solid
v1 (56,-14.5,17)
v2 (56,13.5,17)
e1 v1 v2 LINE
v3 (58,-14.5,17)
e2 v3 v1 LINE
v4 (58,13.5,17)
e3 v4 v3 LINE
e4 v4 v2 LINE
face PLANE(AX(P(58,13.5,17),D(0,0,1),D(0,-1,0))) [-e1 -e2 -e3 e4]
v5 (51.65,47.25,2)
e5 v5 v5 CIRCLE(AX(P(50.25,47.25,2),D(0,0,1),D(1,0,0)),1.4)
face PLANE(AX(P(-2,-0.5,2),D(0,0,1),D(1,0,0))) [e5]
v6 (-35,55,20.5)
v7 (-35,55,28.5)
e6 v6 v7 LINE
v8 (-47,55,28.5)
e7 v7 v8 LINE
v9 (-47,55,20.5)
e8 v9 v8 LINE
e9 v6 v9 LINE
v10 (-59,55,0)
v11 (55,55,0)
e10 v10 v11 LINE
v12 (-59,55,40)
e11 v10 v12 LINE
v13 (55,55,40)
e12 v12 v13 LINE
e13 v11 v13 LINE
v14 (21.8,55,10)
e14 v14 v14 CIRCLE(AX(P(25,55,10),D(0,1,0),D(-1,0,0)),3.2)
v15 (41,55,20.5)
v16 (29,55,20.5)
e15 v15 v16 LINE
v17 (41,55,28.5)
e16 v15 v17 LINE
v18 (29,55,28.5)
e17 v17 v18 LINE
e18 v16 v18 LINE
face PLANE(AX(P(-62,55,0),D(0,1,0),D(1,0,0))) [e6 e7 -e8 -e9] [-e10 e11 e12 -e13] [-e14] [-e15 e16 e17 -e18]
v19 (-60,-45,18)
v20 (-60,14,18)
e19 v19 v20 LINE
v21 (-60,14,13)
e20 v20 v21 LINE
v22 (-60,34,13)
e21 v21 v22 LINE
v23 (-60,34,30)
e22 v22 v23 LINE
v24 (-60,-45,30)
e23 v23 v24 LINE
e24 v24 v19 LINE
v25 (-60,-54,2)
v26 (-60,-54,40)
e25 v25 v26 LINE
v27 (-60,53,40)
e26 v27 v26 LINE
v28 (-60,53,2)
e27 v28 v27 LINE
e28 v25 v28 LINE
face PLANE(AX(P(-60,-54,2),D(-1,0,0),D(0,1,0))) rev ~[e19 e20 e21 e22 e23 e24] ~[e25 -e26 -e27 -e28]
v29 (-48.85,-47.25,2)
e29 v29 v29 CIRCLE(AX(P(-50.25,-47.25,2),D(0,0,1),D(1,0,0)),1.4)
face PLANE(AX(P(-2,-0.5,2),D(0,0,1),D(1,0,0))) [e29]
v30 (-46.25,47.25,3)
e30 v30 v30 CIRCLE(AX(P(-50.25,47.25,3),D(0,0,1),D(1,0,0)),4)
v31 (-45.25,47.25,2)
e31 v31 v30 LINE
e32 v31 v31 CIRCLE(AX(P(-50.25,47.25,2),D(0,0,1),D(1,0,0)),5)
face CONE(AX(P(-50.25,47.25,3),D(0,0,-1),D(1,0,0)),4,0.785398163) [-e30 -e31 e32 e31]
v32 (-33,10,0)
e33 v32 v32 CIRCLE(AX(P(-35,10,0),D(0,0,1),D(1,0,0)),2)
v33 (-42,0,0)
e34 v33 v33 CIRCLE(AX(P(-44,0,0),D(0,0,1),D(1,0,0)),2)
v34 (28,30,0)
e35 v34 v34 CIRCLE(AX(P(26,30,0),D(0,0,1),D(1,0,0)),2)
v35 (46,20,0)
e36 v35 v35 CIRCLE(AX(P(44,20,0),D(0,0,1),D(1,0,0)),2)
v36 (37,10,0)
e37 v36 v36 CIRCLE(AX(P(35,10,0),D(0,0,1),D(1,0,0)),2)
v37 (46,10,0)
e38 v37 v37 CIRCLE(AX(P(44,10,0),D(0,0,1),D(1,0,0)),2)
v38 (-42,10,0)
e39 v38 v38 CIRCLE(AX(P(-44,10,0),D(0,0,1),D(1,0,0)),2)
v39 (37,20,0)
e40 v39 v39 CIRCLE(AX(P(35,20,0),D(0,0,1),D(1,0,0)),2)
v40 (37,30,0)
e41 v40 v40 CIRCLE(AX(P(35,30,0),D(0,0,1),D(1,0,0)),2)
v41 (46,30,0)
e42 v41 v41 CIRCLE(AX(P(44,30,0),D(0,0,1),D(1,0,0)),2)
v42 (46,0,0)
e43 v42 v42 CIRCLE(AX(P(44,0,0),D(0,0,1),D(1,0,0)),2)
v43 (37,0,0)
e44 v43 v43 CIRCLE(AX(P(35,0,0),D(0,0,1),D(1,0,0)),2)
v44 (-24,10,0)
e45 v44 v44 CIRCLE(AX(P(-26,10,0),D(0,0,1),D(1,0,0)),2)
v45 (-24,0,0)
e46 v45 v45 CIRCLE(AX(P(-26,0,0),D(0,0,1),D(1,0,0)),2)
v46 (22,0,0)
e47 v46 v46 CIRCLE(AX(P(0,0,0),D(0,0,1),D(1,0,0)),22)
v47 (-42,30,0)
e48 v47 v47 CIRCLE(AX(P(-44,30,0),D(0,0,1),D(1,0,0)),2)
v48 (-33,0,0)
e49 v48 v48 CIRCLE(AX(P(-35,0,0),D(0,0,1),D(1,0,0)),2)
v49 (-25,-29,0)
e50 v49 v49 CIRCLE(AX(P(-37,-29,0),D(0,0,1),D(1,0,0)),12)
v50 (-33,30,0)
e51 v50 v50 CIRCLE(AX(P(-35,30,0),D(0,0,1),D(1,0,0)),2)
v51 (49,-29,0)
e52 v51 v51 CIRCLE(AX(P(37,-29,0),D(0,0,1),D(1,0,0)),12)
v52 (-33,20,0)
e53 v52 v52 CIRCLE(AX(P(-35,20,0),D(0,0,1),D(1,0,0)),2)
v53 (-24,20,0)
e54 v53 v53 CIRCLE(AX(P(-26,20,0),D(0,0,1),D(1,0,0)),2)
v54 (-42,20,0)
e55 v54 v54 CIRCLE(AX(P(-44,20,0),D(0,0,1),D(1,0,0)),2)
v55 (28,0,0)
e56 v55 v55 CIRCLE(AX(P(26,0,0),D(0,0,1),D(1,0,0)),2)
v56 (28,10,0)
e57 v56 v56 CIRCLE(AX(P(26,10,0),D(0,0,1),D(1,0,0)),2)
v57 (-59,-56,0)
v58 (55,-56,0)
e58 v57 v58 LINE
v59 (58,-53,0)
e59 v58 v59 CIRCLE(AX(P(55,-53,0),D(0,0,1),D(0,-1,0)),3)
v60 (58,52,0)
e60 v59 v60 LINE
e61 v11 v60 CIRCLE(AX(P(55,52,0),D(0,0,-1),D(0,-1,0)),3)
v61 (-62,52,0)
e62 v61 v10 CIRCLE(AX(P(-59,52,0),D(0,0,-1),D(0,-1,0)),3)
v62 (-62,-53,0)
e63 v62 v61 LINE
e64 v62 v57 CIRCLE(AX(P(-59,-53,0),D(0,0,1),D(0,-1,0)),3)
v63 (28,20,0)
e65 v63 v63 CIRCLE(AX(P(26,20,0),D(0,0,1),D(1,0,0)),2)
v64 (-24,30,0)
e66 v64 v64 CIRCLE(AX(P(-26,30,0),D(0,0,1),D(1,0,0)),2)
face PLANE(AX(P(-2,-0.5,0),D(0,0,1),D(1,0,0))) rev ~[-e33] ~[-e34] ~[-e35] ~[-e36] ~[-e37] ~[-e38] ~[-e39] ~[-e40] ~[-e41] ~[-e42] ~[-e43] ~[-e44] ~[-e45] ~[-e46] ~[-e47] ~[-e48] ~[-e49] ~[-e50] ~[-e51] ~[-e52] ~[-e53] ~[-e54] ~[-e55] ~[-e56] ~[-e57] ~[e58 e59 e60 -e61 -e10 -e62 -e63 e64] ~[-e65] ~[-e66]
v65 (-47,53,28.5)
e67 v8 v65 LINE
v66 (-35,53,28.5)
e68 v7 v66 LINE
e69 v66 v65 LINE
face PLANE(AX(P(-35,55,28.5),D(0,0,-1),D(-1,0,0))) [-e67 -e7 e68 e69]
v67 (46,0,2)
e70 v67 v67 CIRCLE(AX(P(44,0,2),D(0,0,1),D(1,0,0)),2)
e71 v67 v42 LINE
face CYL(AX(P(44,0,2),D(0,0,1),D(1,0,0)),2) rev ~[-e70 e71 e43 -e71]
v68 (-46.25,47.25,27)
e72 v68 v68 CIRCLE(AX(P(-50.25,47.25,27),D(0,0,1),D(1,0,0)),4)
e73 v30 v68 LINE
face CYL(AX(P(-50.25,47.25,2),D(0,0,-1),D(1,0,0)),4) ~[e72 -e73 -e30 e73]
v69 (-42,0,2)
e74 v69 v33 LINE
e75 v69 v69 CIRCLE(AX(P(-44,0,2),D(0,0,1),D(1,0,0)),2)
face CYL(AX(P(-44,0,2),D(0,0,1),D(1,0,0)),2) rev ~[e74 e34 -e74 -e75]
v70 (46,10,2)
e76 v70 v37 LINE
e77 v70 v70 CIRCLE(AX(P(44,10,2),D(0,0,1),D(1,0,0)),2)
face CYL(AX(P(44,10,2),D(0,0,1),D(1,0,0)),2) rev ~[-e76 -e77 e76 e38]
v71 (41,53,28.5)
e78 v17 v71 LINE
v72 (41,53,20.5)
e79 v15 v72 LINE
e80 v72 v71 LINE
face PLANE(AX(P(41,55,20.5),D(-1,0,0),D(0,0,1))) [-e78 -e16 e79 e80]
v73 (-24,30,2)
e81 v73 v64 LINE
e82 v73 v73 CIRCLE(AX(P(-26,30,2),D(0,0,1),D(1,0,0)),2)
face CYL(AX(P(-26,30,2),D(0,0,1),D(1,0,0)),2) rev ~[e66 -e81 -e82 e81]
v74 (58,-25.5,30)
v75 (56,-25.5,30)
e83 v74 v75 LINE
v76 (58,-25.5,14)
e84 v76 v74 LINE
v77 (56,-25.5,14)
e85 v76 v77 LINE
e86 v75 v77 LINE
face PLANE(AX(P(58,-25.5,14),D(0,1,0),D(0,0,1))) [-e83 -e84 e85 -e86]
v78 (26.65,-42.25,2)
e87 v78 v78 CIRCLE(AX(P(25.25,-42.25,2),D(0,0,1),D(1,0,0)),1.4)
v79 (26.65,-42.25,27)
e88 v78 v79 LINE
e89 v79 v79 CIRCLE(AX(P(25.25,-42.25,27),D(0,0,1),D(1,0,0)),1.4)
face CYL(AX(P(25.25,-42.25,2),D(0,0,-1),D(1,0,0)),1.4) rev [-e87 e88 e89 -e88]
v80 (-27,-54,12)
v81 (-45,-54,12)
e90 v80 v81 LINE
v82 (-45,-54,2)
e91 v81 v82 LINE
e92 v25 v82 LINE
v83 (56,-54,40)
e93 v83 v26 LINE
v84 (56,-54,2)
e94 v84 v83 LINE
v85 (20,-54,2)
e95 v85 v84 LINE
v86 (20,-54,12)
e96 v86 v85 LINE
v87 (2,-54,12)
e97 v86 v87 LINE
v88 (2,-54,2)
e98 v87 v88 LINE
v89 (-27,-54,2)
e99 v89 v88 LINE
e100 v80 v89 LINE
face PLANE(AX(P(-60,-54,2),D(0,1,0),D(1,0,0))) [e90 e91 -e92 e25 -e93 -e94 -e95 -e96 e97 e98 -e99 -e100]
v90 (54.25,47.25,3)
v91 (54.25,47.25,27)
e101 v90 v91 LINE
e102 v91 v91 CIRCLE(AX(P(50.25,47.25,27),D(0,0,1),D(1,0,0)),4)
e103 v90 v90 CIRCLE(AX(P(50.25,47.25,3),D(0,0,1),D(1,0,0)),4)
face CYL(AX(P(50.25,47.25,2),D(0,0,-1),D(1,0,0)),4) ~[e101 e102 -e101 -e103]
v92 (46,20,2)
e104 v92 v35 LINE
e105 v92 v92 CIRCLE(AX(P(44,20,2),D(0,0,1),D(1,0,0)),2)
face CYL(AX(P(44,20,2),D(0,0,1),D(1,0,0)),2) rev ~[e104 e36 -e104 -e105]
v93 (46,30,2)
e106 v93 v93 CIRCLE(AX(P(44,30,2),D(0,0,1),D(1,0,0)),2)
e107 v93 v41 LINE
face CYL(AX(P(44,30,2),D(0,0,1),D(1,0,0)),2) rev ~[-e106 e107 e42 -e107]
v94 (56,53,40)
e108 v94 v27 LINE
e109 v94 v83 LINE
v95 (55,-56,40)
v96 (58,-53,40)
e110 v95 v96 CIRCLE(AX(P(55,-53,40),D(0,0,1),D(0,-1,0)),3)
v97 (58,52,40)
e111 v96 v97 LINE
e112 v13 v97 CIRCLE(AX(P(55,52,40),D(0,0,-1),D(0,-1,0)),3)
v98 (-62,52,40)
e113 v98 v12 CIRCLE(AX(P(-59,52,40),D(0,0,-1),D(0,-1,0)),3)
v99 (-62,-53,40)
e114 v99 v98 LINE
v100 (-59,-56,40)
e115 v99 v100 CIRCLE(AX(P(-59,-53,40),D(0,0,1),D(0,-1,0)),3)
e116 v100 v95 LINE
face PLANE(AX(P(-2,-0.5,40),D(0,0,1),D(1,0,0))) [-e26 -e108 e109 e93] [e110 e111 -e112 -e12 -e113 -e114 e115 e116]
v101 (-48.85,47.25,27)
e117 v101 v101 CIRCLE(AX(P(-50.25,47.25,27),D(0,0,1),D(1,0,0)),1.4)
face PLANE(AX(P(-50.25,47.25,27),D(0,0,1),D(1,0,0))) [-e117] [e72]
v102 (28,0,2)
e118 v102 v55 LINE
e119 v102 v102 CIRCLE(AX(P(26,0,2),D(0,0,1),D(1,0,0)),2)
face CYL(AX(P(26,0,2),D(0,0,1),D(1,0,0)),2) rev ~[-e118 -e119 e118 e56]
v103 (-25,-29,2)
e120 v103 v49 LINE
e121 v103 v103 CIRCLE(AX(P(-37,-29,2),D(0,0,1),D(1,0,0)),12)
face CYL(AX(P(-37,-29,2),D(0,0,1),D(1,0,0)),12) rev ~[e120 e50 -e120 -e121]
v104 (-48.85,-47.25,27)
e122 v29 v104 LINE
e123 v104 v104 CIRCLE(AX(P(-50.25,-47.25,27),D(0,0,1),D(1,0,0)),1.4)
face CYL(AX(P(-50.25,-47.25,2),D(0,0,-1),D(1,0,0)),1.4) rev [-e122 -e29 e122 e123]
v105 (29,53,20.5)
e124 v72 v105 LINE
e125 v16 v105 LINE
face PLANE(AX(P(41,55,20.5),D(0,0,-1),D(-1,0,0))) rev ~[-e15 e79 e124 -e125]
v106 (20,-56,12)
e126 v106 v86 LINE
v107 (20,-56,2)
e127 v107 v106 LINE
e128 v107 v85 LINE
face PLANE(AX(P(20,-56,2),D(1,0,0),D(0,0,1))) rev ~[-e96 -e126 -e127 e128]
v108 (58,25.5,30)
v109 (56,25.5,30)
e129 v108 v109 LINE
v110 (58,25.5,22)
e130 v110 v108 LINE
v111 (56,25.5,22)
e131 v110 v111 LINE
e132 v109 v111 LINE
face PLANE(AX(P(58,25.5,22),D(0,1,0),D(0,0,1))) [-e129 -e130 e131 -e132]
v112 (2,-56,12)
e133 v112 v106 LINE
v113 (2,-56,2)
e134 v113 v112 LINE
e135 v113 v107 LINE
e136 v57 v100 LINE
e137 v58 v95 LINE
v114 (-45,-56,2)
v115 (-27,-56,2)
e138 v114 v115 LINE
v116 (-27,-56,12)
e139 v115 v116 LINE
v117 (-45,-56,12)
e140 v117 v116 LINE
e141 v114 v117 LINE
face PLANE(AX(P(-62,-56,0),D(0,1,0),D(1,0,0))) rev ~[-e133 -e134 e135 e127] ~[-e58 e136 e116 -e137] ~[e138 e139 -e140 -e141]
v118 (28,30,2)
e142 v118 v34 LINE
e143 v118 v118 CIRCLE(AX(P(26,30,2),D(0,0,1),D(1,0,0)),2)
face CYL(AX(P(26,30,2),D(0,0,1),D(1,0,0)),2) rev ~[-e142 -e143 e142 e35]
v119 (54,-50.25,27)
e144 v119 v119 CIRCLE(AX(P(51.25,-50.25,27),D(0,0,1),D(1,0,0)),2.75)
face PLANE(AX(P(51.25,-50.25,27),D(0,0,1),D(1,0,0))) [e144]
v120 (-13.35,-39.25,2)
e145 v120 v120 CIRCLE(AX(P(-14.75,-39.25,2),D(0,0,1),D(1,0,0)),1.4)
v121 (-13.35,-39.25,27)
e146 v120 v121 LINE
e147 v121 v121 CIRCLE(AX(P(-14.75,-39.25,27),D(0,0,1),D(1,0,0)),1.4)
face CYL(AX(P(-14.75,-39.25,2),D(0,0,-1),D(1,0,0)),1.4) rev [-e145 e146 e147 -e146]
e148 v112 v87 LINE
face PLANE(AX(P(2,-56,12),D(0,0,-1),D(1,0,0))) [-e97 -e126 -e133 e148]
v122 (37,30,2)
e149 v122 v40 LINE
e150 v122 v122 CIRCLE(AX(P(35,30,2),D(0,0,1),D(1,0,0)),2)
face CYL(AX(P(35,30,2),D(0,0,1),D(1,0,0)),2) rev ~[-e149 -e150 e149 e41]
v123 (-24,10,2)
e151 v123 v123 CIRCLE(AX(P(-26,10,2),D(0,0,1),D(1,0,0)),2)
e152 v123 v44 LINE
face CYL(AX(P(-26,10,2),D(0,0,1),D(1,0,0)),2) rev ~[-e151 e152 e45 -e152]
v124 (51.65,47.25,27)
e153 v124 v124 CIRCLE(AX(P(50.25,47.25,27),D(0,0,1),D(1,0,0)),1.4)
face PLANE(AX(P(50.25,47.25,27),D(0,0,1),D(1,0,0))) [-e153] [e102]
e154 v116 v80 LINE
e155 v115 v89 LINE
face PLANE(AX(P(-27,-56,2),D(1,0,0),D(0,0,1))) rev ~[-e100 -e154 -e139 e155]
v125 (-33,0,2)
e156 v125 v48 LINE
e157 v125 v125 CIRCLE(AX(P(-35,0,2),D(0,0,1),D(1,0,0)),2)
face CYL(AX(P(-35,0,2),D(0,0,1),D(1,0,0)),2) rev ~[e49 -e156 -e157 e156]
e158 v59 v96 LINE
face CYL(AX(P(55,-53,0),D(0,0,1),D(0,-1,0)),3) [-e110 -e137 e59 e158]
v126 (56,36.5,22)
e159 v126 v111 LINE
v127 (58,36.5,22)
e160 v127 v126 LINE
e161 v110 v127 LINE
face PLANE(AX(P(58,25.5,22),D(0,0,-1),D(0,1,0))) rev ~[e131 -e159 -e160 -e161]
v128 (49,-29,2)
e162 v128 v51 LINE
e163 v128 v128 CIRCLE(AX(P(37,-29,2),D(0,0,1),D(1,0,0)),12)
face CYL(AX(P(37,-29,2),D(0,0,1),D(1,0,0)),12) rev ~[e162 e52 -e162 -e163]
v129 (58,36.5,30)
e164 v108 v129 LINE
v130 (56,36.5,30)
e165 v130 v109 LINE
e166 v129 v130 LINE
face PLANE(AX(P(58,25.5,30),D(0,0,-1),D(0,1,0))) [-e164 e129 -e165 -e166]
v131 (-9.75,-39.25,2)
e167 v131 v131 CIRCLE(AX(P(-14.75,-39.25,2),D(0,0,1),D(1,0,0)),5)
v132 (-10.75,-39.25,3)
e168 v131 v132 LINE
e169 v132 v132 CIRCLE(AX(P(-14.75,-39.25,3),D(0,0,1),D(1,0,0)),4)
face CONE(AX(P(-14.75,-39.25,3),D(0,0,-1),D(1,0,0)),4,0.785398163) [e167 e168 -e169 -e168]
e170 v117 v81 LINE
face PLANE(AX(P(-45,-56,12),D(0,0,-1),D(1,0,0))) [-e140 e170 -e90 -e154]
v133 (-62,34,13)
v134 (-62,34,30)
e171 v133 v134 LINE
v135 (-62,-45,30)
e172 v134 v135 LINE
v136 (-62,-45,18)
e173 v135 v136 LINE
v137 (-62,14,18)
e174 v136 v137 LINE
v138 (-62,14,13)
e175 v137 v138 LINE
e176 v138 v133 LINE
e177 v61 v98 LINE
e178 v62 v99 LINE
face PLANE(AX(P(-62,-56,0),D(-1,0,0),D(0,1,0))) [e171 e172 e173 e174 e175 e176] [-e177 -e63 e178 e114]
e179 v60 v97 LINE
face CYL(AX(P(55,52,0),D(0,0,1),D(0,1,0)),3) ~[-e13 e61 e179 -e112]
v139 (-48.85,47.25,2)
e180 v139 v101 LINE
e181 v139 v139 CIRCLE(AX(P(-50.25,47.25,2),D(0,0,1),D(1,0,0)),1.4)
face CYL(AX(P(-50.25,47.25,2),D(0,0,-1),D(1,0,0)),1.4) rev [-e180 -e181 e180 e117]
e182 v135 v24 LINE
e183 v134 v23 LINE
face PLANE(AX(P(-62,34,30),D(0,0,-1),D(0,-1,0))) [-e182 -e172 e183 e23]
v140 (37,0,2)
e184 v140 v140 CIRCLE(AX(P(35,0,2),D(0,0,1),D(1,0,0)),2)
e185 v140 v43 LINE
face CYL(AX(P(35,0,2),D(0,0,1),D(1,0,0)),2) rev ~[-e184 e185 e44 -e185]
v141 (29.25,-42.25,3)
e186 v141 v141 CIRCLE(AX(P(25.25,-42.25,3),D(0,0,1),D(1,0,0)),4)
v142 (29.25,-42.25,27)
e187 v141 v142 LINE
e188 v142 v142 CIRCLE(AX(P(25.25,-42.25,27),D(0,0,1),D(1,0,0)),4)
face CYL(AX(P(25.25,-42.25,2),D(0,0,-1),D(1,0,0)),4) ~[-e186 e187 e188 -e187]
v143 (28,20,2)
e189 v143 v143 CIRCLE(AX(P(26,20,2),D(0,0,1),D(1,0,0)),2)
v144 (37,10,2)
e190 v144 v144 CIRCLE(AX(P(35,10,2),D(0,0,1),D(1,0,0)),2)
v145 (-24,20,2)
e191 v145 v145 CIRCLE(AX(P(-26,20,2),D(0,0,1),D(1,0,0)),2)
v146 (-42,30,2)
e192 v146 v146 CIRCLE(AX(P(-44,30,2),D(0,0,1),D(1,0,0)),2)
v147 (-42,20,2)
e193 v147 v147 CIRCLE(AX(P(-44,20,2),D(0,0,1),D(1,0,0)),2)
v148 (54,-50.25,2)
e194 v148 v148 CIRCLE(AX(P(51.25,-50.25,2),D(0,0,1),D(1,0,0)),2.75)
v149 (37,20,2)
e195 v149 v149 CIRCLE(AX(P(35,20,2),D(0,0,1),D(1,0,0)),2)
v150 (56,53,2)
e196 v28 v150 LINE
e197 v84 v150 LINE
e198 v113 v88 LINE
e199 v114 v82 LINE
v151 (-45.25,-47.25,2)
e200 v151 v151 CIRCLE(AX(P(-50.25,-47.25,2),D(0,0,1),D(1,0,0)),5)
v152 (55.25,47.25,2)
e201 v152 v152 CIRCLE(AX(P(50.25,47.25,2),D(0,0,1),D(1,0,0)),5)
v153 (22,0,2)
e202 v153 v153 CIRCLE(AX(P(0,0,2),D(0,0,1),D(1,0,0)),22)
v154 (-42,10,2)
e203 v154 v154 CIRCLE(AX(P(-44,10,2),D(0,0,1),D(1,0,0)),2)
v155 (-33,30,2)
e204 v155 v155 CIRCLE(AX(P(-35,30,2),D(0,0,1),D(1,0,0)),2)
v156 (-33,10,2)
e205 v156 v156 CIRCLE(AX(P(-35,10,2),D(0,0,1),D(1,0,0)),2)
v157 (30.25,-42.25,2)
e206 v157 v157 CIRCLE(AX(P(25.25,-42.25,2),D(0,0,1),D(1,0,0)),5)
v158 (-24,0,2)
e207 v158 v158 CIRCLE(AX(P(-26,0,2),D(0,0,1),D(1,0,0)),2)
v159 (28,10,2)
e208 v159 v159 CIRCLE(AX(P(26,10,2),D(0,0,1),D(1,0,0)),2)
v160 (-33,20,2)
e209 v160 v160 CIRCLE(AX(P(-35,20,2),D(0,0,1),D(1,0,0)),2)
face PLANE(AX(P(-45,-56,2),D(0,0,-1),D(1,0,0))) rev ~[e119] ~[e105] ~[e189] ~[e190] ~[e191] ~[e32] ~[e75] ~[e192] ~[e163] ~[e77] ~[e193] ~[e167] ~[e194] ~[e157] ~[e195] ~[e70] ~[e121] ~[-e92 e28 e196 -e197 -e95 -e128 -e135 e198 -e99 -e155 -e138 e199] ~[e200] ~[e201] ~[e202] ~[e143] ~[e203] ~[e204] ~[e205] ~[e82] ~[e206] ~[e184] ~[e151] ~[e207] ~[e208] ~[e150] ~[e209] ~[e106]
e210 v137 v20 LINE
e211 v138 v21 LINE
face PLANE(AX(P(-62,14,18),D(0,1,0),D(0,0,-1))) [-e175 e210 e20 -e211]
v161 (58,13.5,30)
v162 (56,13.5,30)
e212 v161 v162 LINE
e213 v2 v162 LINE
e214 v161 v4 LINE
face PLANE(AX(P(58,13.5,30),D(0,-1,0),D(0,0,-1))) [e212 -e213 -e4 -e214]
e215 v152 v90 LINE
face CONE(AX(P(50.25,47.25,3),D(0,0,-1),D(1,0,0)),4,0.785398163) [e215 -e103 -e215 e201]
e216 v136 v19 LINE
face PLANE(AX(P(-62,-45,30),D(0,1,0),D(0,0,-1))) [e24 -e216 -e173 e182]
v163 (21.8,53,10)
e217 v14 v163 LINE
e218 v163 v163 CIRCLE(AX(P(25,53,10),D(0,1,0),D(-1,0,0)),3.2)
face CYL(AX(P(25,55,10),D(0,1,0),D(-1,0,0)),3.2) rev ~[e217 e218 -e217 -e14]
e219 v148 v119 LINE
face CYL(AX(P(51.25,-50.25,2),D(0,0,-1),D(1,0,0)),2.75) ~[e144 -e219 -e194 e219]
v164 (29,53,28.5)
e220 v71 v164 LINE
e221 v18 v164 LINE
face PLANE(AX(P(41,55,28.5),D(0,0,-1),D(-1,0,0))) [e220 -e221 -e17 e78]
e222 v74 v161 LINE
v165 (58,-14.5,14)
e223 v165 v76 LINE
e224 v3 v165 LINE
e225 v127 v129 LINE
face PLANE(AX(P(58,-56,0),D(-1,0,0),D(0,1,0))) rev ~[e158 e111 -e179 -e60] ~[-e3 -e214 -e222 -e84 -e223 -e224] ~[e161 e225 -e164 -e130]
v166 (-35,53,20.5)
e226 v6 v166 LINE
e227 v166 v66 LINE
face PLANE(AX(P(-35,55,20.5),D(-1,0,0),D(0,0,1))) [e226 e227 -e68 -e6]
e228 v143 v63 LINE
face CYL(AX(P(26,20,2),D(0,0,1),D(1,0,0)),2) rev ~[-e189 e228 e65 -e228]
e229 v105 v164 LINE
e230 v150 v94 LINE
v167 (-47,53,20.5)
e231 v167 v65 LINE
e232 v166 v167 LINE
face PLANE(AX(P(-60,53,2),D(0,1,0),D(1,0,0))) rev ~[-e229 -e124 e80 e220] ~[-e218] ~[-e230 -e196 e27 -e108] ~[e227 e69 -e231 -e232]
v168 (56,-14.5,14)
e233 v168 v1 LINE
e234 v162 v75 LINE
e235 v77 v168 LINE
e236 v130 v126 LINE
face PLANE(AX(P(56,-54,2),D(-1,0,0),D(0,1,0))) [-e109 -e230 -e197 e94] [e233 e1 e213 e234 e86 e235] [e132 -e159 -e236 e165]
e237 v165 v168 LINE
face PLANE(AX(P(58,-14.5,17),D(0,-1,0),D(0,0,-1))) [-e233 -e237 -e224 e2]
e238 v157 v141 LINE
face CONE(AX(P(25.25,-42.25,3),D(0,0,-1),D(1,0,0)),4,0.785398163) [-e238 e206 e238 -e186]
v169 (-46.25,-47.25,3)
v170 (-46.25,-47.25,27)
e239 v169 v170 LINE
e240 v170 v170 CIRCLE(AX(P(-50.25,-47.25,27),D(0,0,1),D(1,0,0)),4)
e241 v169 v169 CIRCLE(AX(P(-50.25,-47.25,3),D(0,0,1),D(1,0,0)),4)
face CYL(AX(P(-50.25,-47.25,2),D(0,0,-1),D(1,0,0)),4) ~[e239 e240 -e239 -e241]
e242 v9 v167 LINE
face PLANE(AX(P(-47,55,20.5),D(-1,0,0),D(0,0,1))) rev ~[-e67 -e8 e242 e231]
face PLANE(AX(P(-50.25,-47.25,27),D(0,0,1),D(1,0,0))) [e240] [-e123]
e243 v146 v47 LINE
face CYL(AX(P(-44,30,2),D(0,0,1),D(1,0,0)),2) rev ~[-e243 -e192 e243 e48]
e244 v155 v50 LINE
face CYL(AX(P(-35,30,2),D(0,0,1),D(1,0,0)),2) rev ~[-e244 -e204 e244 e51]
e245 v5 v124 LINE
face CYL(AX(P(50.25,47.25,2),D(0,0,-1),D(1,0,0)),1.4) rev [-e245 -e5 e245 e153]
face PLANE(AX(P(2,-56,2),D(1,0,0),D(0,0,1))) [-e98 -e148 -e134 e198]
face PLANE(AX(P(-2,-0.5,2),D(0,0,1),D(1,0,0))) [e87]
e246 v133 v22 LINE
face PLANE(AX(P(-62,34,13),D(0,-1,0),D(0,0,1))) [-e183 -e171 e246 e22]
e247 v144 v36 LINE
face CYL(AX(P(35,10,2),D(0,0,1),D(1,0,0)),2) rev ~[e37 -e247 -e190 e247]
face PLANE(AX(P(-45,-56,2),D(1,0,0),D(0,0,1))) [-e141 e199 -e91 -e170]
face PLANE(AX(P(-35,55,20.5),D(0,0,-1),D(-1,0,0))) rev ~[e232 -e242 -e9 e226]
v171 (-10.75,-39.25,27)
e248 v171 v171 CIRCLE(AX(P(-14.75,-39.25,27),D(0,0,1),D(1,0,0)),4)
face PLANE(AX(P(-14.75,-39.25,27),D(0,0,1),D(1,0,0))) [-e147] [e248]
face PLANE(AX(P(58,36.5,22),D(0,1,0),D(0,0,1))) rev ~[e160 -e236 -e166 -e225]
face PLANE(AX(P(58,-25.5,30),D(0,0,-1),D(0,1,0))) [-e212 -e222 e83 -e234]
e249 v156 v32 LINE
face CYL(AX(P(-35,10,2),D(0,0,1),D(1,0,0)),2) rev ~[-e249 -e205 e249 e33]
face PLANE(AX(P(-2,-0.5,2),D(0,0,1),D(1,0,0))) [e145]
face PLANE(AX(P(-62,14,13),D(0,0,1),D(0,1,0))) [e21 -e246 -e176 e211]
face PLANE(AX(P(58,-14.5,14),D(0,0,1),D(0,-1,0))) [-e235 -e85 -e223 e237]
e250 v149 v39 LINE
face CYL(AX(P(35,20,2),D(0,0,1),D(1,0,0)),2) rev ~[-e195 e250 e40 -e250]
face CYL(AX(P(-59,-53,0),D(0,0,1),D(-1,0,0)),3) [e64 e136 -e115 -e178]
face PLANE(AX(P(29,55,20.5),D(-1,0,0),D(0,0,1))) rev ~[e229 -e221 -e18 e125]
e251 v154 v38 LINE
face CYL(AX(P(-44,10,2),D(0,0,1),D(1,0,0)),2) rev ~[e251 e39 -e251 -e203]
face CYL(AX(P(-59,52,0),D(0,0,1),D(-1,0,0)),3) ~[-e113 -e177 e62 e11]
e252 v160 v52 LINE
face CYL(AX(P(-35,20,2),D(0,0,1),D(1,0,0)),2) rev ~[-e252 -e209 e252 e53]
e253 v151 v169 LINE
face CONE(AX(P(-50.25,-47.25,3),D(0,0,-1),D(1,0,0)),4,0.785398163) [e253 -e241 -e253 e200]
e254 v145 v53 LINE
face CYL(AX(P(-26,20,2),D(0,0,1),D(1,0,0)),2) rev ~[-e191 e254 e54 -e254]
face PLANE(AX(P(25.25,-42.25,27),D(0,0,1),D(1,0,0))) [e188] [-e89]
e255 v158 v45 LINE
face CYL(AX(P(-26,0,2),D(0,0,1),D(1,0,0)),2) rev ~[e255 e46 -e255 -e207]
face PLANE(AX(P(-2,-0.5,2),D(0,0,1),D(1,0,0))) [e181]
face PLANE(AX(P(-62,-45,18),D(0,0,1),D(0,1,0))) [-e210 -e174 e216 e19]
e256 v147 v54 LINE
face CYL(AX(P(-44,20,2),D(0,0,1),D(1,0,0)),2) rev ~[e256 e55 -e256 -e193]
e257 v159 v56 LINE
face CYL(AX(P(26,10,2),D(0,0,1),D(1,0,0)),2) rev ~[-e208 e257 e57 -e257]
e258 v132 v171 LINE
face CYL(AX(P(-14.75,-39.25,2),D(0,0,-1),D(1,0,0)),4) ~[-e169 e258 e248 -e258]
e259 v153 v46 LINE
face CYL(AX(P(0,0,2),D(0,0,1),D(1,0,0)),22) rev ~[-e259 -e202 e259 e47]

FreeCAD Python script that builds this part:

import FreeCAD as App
import Part
import Sketcher


def edges_at(feature, points):
    """Names of the edges that pass closest to the given points."""
    edges = feature.Shape.Edges
    near = lambda p: min(range(len(edges)), key=lambda i: edges[i].distToShape(Part.Vertex(*p))[0])
    return sorted({f"Edge{near(p) + 1}" for p in points})

doc = App.newDocument("Part")
body = doc.addObject("PartDesign::Body", "Body")
body.AllowCompound = True

sketch1 = body.newObject("Sketcher::SketchObject", "Sketch")
sketch1.AttachmentSupport = (doc.getObject("XY_Plane"), [""])
sketch1.MapMode = "FlatFace"
sketch1.AttachmentOffset = App.Placement(App.Vector(0, 0, 2), App.Rotation())
sketch1.addGeometry(Part.Circle(App.Vector(0, 0, 0), App.Vector(0, 0, 1), 22), False)
sketch1.addGeometry(Part.Circle(App.Vector(-37, -29, 0), App.Vector(0, 0, 1), 12), False)
sketch1.addGeometry(Part.Circle(App.Vector(37, -29, 0), App.Vector(0, 0, 1), 12), False)
sketch1.addGeometry(Part.Circle(App.Vector(-44, 30, 0), App.Vector(0, 0, 1), 2), False)
sketch1.addGeometry(Part.Circle(App.Vector(-35, 30, 0), App.Vector(0, 0, 1), 2), False)
sketch1.addGeometry(Part.Circle(App.Vector(-26, 30, 0), App.Vector(0, 0, 1), 2), False)
sketch1.addGeometry(Part.Circle(App.Vector(-26, 20, 0), App.Vector(0, 0, 1), 2), False)
sketch1.addGeometry(Part.Circle(App.Vector(-35, 20, 0), App.Vector(0, 0, 1), 2), False)
sketch1.addGeometry(Part.Circle(App.Vector(-44, 20, 0), App.Vector(0, 0, 1), 2), False)
sketch1.addGeometry(Part.Circle(App.Vector(-44, 10, 0), App.Vector(0, 0, 1), 2), False)
sketch1.addGeometry(Part.Circle(App.Vector(-35, 10, 0), App.Vector(0, 0, 1), 2), False)
sketch1.addGeometry(Part.Circle(App.Vector(-26, 10, 0), App.Vector(0, 0, 1), 2), False)
sketch1.addGeometry(Part.Circle(App.Vector(-44, 0, 0), App.Vector(0, 0, 1), 2), False)
sketch1.addGeometry(Part.Circle(App.Vector(-35, 0, 0), App.Vector(0, 0, 1), 2), False)
sketch1.addGeometry(Part.Circle(App.Vector(-26, 0, 0), App.Vector(0, 0, 1), 2), False)
sketch1.addGeometry(Part.Circle(App.Vector(26, 0, 0), App.Vector(0, 0, 1), 2), False)
sketch1.addGeometry(Part.Circle(App.Vector(35, 0, 0), App.Vector(0, 0, 1), 2), False)
sketch1.addGeometry(Part.Circle(App.Vector(44, 0, 0), App.Vector(0, 0, 1), 2), False)
sketch1.addGeometry(Part.Circle(App.Vector(44, 10, 0), App.Vector(0, 0, 1), 2), False)
sketch1.addGeometry(Part.Circle(App.Vector(44, 20, 0), App.Vector(0, 0, 1), 2), False)
sketch1.addGeometry(Part.Circle(App.Vector(44, 30, 0), App.Vector(0, 0, 1), 2), False)
sketch1.addGeometry(Part.Circle(App.Vector(35, 30, 0), App.Vector(0, 0, 1), 2), False)
sketch1.addGeometry(Part.Circle(App.Vector(26, 30, 0), App.Vector(0, 0, 1), 2), False)
sketch1.addGeometry(Part.Circle(App.Vector(26, 20, 0), App.Vector(0, 0, 1), 2), False)
sketch1.addGeometry(Part.Circle(App.Vector(35, 20, 0), App.Vector(0, 0, 1), 2), False)
sketch1.addGeometry(Part.Circle(App.Vector(35, 10, 0), App.Vector(0, 0, 1), 2), False)
sketch1.addGeometry(Part.Circle(App.Vector(26, 10, 0), App.Vector(0, 0, 1), 2), False)
sketch1.addConstraint(Sketcher.Constraint("Coincident", 0, 3, -1, 1))
sketch1.addConstraint(Sketcher.Constraint("Equal", 1, 2))
sketch1.addConstraint(Sketcher.Constraint("Equal", 3, 4))
sketch1.addConstraint(Sketcher.Constraint("Equal", 4, 5))
sketch1.addConstraint(Sketcher.Constraint("Equal", 5, 6))
sketch1.addConstraint(Sketcher.Constraint("Equal", 6, 7))
sketch1.addConstraint(Sketcher.Constraint("Equal", 7, 8))
sketch1.addConstraint(Sketcher.Constraint("Equal", 8, 9))
sketch1.addConstraint(Sketcher.Constraint("Equal", 9, 10))
sketch1.addConstraint(Sketcher.Constraint("Equal", 10, 11))
sketch1.addConstraint(Sketcher.Constraint("Equal", 11, 12))
sketch1.addConstraint(Sketcher.Constraint("Equal", 12, 13))
sketch1.addConstraint(Sketcher.Constraint("Equal", 13, 14))
sketch1.addConstraint(Sketcher.Constraint("Equal", 14, 15))
sketch1.addConstraint(Sketcher.Constraint("Equal", 15, 16))
sketch1.addConstraint(Sketcher.Constraint("Equal", 16, 17))
sketch1.addConstraint(Sketcher.Constraint("Equal", 17, 18))
sketch1.addConstraint(Sketcher.Constraint("Equal", 18, 19))
sketch1.addConstraint(Sketcher.Constraint("Equal", 19, 20))
sketch1.addConstraint(Sketcher.Constraint("Equal", 20, 21))
sketch1.addConstraint(Sketcher.Constraint("Equal", 21, 22))
sketch1.addConstraint(Sketcher.Constraint("Equal", 22, 23))
sketch1.addConstraint(Sketcher.Constraint("Equal", 23, 24))
sketch1.addConstraint(Sketcher.Constraint("Equal", 24, 25))
sketch1.addConstraint(Sketcher.Constraint("Equal", 25, 26))
sketch1.addConstraint(Sketcher.Constraint("Symmetric", 14, 3, 15, 3, -1, 1))
sketch1.addConstraint(Sketcher.Constraint("Symmetric", 13, 3, 16, 3, -1, 1))
sketch1.addConstraint(Sketcher.Constraint("Symmetric", 12, 3, 17, 3, -1, 1))
sketch1.addConstraint(Sketcher.Constraint("Symmetric", 1, 3, 2, 3, -2))
sketch1.addConstraint(Sketcher.Constraint("Symmetric", 9, 3, 18, 3, -2))
sketch1.addConstraint(Sketcher.Constraint("Symmetric", 8, 3, 19, 3, -2))
sketch1.addConstraint(Sketcher.Constraint("Symmetric", 3, 3, 20, 3, -2))
sketch1.addConstraint(Sketcher.Constraint("Symmetric", 4, 3, 21, 3, -2))
sketch1.addConstraint(Sketcher.Constraint("Symmetric", 5, 3, 22, 3, -2))
sketch1.addConstraint(Sketcher.Constraint("Symmetric", 6, 3, 23, 3, -2))
sketch1.addConstraint(Sketcher.Constraint("Symmetric", 7, 3, 24, 3, -2))
sketch1.addConstraint(Sketcher.Constraint("Symmetric", 10, 3, 25, 3, -2))
sketch1.addConstraint(Sketcher.Constraint("Symmetric", 11, 3, 26, 3, -2))
sketch1.addConstraint(Sketcher.Constraint("PointOnObject", 12, 3, -1))
sketch1.addConstraint(Sketcher.Constraint("PointOnObject", 13, 3, -1))
sketch1.addConstraint(Sketcher.Constraint("PointOnObject", 14, 3, -1))
sketch1.addConstraint(Sketcher.Constraint("Horizontal", 3, 3, 4, 3))
sketch1.addConstraint(Sketcher.Constraint("Horizontal", 4, 3, 5, 3))
sketch1.addConstraint(Sketcher.Constraint("Horizontal", 6, 3, 7, 3))
sketch1.addConstraint(Sketcher.Constraint("Horizontal", 7, 3, 8, 3))
sketch1.addConstraint(Sketcher.Constraint("Horizontal", 9, 3, 10, 3))
sketch1.addConstraint(Sketcher.Constraint("Horizontal", 10, 3, 11, 3))
sketch1.addConstraint(Sketcher.Constraint("Vertical", 5, 3, 6, 3))
sketch1.addConstraint(Sketcher.Constraint("Vertical", 4, 3, 7, 3))
sketch1.addConstraint(Sketcher.Constraint("Vertical", 3, 3, 8, 3))
sketch1.addConstraint(Sketcher.Constraint("Vertical", 8, 3, 9, 3))
sketch1.addConstraint(Sketcher.Constraint("Vertical", 7, 3, 10, 3))
sketch1.addConstraint(Sketcher.Constraint("Vertical", 6, 3, 11, 3))
sketch1.addConstraint(Sketcher.Constraint("Vertical", 9, 3, 12, 3))
sketch1.addConstraint(Sketcher.Constraint("Vertical", 10, 3, 13, 3))
sketch1.addConstraint(Sketcher.Constraint("Vertical", 11, 3, 14, 3))
sketch1.addConstraint(Sketcher.Constraint("Diameter", 0, 44.0))
sketch1.addConstraint(Sketcher.Constraint("Diameter", 1, 24.0))
sketch1.addConstraint(Sketcher.Constraint("Diameter", 3, 4.0))
sketch1.addConstraint(Sketcher.Constraint("DistanceX", 1, 3, -1, 1, 37.0))
sketch1.addConstraint(Sketcher.Constraint("DistanceY", 1, 3, -1, 1, 29.0))
sketch1.addConstraint(Sketcher.Constraint("DistanceX", 3, 3, -1, 1, 44.0))
sketch1.addConstraint(Sketcher.Constraint("DistanceY", -1, 1, 3, 3, 30.0))
sketch1.addConstraint(Sketcher.Constraint("DistanceX", 4, 3, -1, 1, 35.0))
sketch1.addConstraint(Sketcher.Constraint("DistanceX", 5, 3, -1, 1, 26.0))
sketch1.addConstraint(Sketcher.Constraint("DistanceY", -1, 1, 6, 3, 20.0))
sketch1.addConstraint(Sketcher.Constraint("DistanceY", -1, 1, 9, 3, 10.0))
pad1 = body.newObject("PartDesign::Pad", "Pad")
pad1.Profile = sketch1
pad1.Length = 10
pad1.Reversed = True
body2 = doc.addObject("PartDesign::Body", "Body001")
body2.AllowCompound = True

sketch2 = body2.newObject("Sketcher::SketchObject", "Sketch001")
sketch2.AttachmentSupport = (doc.getObject("XY_Plane001"), [""])
sketch2.MapMode = "FlatFace"
sketch2.addGeometry(Part.Circle(App.Vector(-25, 10, 0), App.Vector(0, 0, 1), 3.2), False)
sketch2.addGeometry(Part.LineSegment(App.Vector(-41, 28.5, 0), App.Vector(-41, 20.5, 0)), False)
sketch2.addGeometry(Part.LineSegment(App.Vector(-41, 20.5, 0), App.Vector(-29, 20.5, 0)), False)
sketch2.addGeometry(Part.LineSegment(App.Vector(-29, 20.5, 0), App.Vector(-29, 28.5, 0)), False)
sketch2.addGeometry(Part.LineSegment(App.Vector(-29, 28.5, 0), App.Vector(-41, 28.5, 0)), False)
sketch2.addGeometry(Part.LineSegment(App.Vector(35, 28.5, 0), App.Vector(35, 20.5, 0)), False)
sketch2.addGeometry(Part.LineSegment(App.Vector(35, 20.5, 0), App.Vector(47, 20.5, 0)), False)
sketch2.addGeometry(Part.LineSegment(App.Vector(47, 20.5, 0), App.Vector(47, 28.5, 0)), False)
sketch2.addGeometry(Part.LineSegment(App.Vector(47, 28.5, 0), App.Vector(35, 28.5, 0)), False)
sketch2.addConstraint(Sketcher.Constraint("Coincident", 1, 2, 2, 1))
sketch2.addConstraint(Sketcher.Constraint("Coincident", 2, 2, 3, 1))
sketch2.addConstraint(Sketcher.Constraint("Coincident", 3, 2, 4, 1))
sketch2.addConstraint(Sketcher.Constraint("Coincident", 4, 2, 1, 1))
sketch2.addConstraint(Sketcher.Constraint("Coincident", 5, 2, 6, 1))
sketch2.addConstraint(Sketcher.Constraint("Coincident", 6, 2, 7, 1))
sketch2.addConstraint(Sketcher.Constraint("Coincident", 7, 2, 8, 1))
sketch2.addConstraint(Sketcher.Constraint("Coincident", 8, 2, 5, 1))
sketch2.addConstraint(Sketcher.Constraint("Vertical", 1))
sketch2.addConstraint(Sketcher.Constraint("Horizontal", 2))
sketch2.addConstraint(Sketcher.Constraint("Vertical", 3))
sketch2.addConstraint(Sketcher.Constraint("Horizontal", 4))
sketch2.addConstraint(Sketcher.Constraint("Vertical", 5))
sketch2.addConstraint(Sketcher.Constraint("Horizontal", 6))
sketch2.addConstraint(Sketcher.Constraint("Vertical", 7))
sketch2.addConstraint(Sketcher.Constraint("Horizontal", 8))
sketch2.addConstraint(Sketcher.Constraint("Horizontal", 2, 2, 5, 2))
sketch2.addConstraint(Sketcher.Constraint("Horizontal", 4, 2, 7, 2))
sketch2.addConstraint(Sketcher.Constraint("Equal", 4, 6))
sketch2.addConstraint(Sketcher.Constraint("Diameter", 0, 6.4))
sketch2.addConstraint(Sketcher.Constraint("DistanceX", 2, 1, 2, 2, 12.0))
sketch2.addConstraint(Sketcher.Constraint("DistanceY", 1, 2, 1, 1, 8.0))
sketch2.addConstraint(Sketcher.Constraint("DistanceX", 0, 3, -1, 1, 25.0))
sketch2.addConstraint(Sketcher.Constraint("DistanceY", -1, 1, 0, 3, 10.0))
sketch2.addConstraint(Sketcher.Constraint("DistanceX", 1, 2, -1, 1, 41.0))
sketch2.addConstraint(Sketcher.Constraint("DistanceX", -1, 1, 5, 2, 35.0))
sketch2.addConstraint(Sketcher.Constraint("DistanceY", -1, 1, 1, 2, 20.5))
pad2 = body2.newObject("PartDesign::Pad", "Pad001")
pad2.Profile = sketch2
pad2.Length = 5
pad2.Reversed = True
body3 = doc.addObject("PartDesign::Body", "Body002")
body3.AllowCompound = True
doc.recompute()

body2.Placement = App.Placement(App.Vector(0, 0, 0), App.Rotation(App.Vector(1, 0, 0), 90))
boolean = body3.newObject("PartDesign::Boolean", "Boolean")
boolean.Type = "Fuse"
boolean.addObjects([body2])
body4 = doc.addObject("PartDesign::Body", "Body003")
body4.AllowCompound = True
doc.recompute()

body3.Placement = App.Placement(App.Vector(0, 55, 0), App.Rotation(App.Vector(0, 0, 1), 180))
boolean2 = body4.newObject("PartDesign::Boolean", "Boolean001")
boolean2.Type = "Fuse"
boolean2.addObjects([body3])
body5 = doc.addObject("PartDesign::Body", "Body004")

sketch3 = body5.newObject("Sketcher::SketchObject", "Sketch002")
sketch3.AttachmentSupport = (doc.getObject("YZ_Plane004"), [""])
sketch3.MapMode = "FlatFace"
sketch3.AttachmentOffset = App.Placement(App.Vector(0, 0, -62), App.Rotation())
sketch3.addGeometry(Part.LineSegment(App.Vector(-45, 30, 0), App.Vector(34, 30, 0)), False)
sketch3.addGeometry(Part.LineSegment(App.Vector(34, 30, 0), App.Vector(34, 13, 0)), False)
sketch3.addGeometry(Part.LineSegment(App.Vector(34, 13, 0), App.Vector(14, 13, 0)), False)
sketch3.addGeometry(Part.LineSegment(App.Vector(14, 13, 0), App.Vector(14, 18, 0)), False)
sketch3.addGeometry(Part.LineSegment(App.Vector(14, 18, 0), App.Vector(-45, 18, 0)), False)
sketch3.addGeometry(Part.LineSegment(App.Vector(-45, 18, 0), App.Vector(-45, 30, 0)), False)
sketch3.addConstraint(Sketcher.Constraint("Coincident", 0, 2, 1, 1))
sketch3.addConstraint(Sketcher.Constraint("Coincident", 1, 2, 2, 1))
sketch3.addConstraint(Sketcher.Constraint("Coincident", 2, 2, 3, 1))
sketch3.addConstraint(Sketcher.Constraint("Coincident", 3, 2, 4, 1))
sketch3.addConstraint(Sketcher.Constraint("Coincident", 4, 2, 5, 1))
sketch3.addConstraint(Sketcher.Constraint("Coincident", 5, 2, 0, 1))
sketch3.addConstraint(Sketcher.Constraint("Horizontal", 0))
sketch3.addConstraint(Sketcher.Constraint("Vertical", 1))
sketch3.addConstraint(Sketcher.Constraint("Horizontal", 2))
sketch3.addConstraint(Sketcher.Constraint("Vertical", 3))
sketch3.addConstraint(Sketcher.Constraint("Horizontal", 4))
sketch3.addConstraint(Sketcher.Constraint("Vertical", 5))
sketch3.addConstraint(Sketcher.Constraint("DistanceX", 0, 1, 0, 2, 79.0))
sketch3.addConstraint(Sketcher.Constraint("DistanceX", 2, 2, 2, 1, 20.0))
sketch3.addConstraint(Sketcher.Constraint("DistanceY", 1, 2, 1, 1, 17.0))
sketch3.addConstraint(Sketcher.Constraint("DistanceY", 3, 1, 3, 2, 5.0))
sketch3.addConstraint(Sketcher.Constraint("DistanceX", -1, 1, 0, 2, 34.0))
sketch3.addConstraint(Sketcher.Constraint("DistanceY", -1, 1, 0, 2, 30.0))
pad3 = body5.newObject("PartDesign::Pad", "Pad002")
pad3.Profile = sketch3
pad3.Length = 3
body6 = doc.addObject("PartDesign::Body", "Body005")
body6.AllowCompound = True

sketch4 = body6.newObject("Sketcher::SketchObject", "Sketch003")
sketch4.AttachmentSupport = (doc.getObject("YZ_Plane005"), [""])
sketch4.MapMode = "FlatFace"
sketch4.AttachmentOffset = App.Placement(App.Vector(0, 0, 58), App.Rotation())
sketch4.addGeometry(Part.LineSegment(App.Vector(13.5, 30, 0), App.Vector(-25.5, 30, 0)), False)
sketch4.addGeometry(Part.LineSegment(App.Vector(-25.5, 30, 0), App.Vector(-25.5, 14, 0)), False)
sketch4.addGeometry(Part.LineSegment(App.Vector(-25.5, 14, 0), App.Vector(-14.5, 14, 0)), False)
sketch4.addGeometry(Part.LineSegment(App.Vector(-14.5, 14, 0), App.Vector(-14.5, 17, 0)), False)
sketch4.addGeometry(Part.LineSegment(App.Vector(-14.5, 17, 0), App.Vector(13.5, 17, 0)), False)
sketch4.addGeometry(Part.LineSegment(App.Vector(13.5, 17, 0), App.Vector(13.5, 30, 0)), False)
sketch4.addGeometry(Part.LineSegment(App.Vector(25.5, 30, 0), App.Vector(25.5, 22, 0)), False)
sketch4.addGeometry(Part.LineSegment(App.Vector(25.5, 22, 0), App.Vector(36.5, 22, 0)), False)
sketch4.addGeometry(Part.LineSegment(App.Vector(36.5, 22, 0), App.Vector(36.5, 30, 0)), False)
sketch4.addGeometry(Part.LineSegment(App.Vector(36.5, 30, 0), App.Vector(25.5, 30, 0)), False)
sketch4.addConstraint(Sketcher.Constraint("Coincident", 0, 2, 1, 1))
sketch4.addConstraint(Sketcher.Constraint("Coincident", 1, 2, 2, 1))
sketch4.addConstraint(Sketcher.Constraint("Coincident", 2, 2, 3, 1))
sketch4.addConstraint(Sketcher.Constraint("Coincident", 3, 2, 4, 1))
sketch4.addConstraint(Sketcher.Constraint("Coincident", 4, 2, 5, 1))
sketch4.addConstraint(Sketcher.Constraint("Coincident", 5, 2, 0, 1))
sketch4.addConstraint(Sketcher.Constraint("Coincident", 6, 2, 7, 1))
sketch4.addConstraint(Sketcher.Constraint("Coincident", 7, 2, 8, 1))
sketch4.addConstraint(Sketcher.Constraint("Coincident", 8, 2, 9, 1))
sketch4.addConstraint(Sketcher.Constraint("Coincident", 9, 2, 6, 1))
sketch4.addConstraint(Sketcher.Constraint("Horizontal", 0))
sketch4.addConstraint(Sketcher.Constraint("Vertical", 1))
sketch4.addConstraint(Sketcher.Constraint("Horizontal", 2))
sketch4.addConstraint(Sketcher.Constraint("Vertical", 3))
sketch4.addConstraint(Sketcher.Constraint("Horizontal", 4))
sketch4.addConstraint(Sketcher.Constraint("Vertical", 5))
sketch4.addConstraint(Sketcher.Constraint("Vertical", 6))
sketch4.addConstraint(Sketcher.Constraint("Horizontal", 7))
sketch4.addConstraint(Sketcher.Constraint("Vertical", 8))
sketch4.addConstraint(Sketcher.Constraint("Horizontal", 9))
sketch4.addConstraint(Sketcher.Constraint("Symmetric", 0, 2, 9, 2, -2))
sketch4.addConstraint(Sketcher.Constraint("Equal", 2, 7))
sketch4.addConstraint(Sketcher.Constraint("DistanceX", 0, 2, 0, 1, 39.0))
sketch4.addConstraint(Sketcher.Constraint("DistanceX", 2, 1, 2, 2, 11.0))
sketch4.addConstraint(Sketcher.Constraint("DistanceY", 1, 2, 1, 1, 16.0))
sketch4.addConstraint(Sketcher.Constraint("DistanceY", 3, 1, 3, 2, 3.0))
sketch4.addConstraint(Sketcher.Constraint("DistanceY", 6, 2, 6, 1, 8.0))
sketch4.addConstraint(Sketcher.Constraint("DistanceY", -1, 1, 0, 2, 30.0))
sketch4.addConstraint(Sketcher.Constraint("DistanceX", 4, 2, 6, 2, 12.0))
pad4 = body6.newObject("PartDesign::Pad", "Pad003")
pad4.Profile = sketch4
pad4.Length = 5
pad4.Reversed = True
body7 = doc.addObject("PartDesign::Body", "Body006")
body7.AllowCompound = True

sketch5 = body7.newObject("Sketcher::SketchObject", "Sketch004")
sketch5.AttachmentSupport = (doc.getObject("XY_Plane006"), [""])
sketch5.MapMode = "FlatFace"
sketch5.addGeometry(Part.LineSegment(App.Vector(2, 12, 0), App.Vector(2, 2, 0)), False)
sketch5.addGeometry(Part.LineSegment(App.Vector(2, 2, 0), App.Vector(20, 2, 0)), False)
sketch5.addGeometry(Part.LineSegment(App.Vector(20, 2, 0), App.Vector(20, 12, 0)), False)
sketch5.addGeometry(Part.LineSegment(App.Vector(20, 12, 0), App.Vector(2, 12, 0)), False)
sketch5.addGeometry(Part.LineSegment(App.Vector(-45, 12, 0), App.Vector(-45, 2, 0)), False)
sketch5.addGeometry(Part.LineSegment(App.Vector(-45, 2, 0), App.Vector(-27, 2, 0)), False)
sketch5.addGeometry(Part.LineSegment(App.Vector(-27, 2, 0), App.Vector(-27, 12, 0)), False)
sketch5.addGeometry(Part.LineSegment(App.Vector(-27, 12, 0), App.Vector(-45, 12, 0)), False)
sketch5.addConstraint(Sketcher.Constraint("Coincident", 0, 2, 1, 1))
sketch5.addConstraint(Sketcher.Constraint("Coincident", 1, 2, 2, 1))
sketch5.addConstraint(Sketcher.Constraint("Coincident", 2, 2, 3, 1))
sketch5.addConstraint(Sketcher.Constraint("Coincident", 3, 2, 0, 1))
sketch5.addConstraint(Sketcher.Constraint("Coincident", 4, 2, 5, 1))
sketch5.addConstraint(Sketcher.Constraint("Coincident", 5, 2, 6, 1))
sketch5.addConstraint(Sketcher.Constraint("Coincident", 6, 2, 7, 1))
sketch5.addConstraint(Sketcher.Constraint("Coincident", 7, 2, 4, 1))
sketch5.addConstraint(Sketcher.Constraint("Vertical", 0))
sketch5.addConstraint(Sketcher.Constraint("Horizontal", 1))
sketch5.addConstraint(Sketcher.Constraint("Vertical", 2))
sketch5.addConstraint(Sketcher.Constraint("Horizontal", 3))
sketch5.addConstraint(Sketcher.Constraint("Vertical", 4))
sketch5.addConstraint(Sketcher.Constraint("Horizontal", 5))
sketch5.addConstraint(Sketcher.Constraint("Vertical", 6))
sketch5.addConstraint(Sketcher.Constraint("Horizontal", 7))
sketch5.addConstraint(Sketcher.Constraint("Horizontal", 1, 2, 4, 2))
sketch5.addConstraint(Sketcher.Constraint("Horizontal", 3, 2, 6, 2))
sketch5.addConstraint(Sketcher.Constraint("Equal", 3, 5))
sketch5.addConstraint(Sketcher.Constraint("DistanceX", 1, 1, 1, 2, 18.0))
sketch5.addConstraint(Sketcher.Constraint("DistanceY", 0, 2, 0, 1, 10.0))
sketch5.addConstraint(Sketcher.Constraint("DistanceX", -1, 1, 0, 2, 2.0))
sketch5.addConstraint(Sketcher.Constraint("DistanceY", -1, 1, 0, 2, 2.0))
sketch5.addConstraint(Sketcher.Constraint("DistanceX", 4, 2, -1, 1, 45.0))
pad5 = body7.newObject("PartDesign::Pad", "Pad004")
pad5.Profile = sketch5
pad5.Length = 5
pad5.Reversed = True
body8 = doc.addObject("PartDesign::Body", "Body007")
body8.AllowCompound = True
doc.recompute()

body7.Placement = App.Placement(App.Vector(0, 0, 0), App.Rotation(App.Vector(1, 0, 0), 90))
boolean3 = body8.newObject("PartDesign::Boolean", "Boolean002")
boolean3.Type = "Fuse"
boolean3.addObjects([body7])
body9 = doc.addObject("PartDesign::Body", "Body008")
body9.AllowCompound = True
doc.recompute()

body8.Placement = App.Placement(App.Vector(0, -56, 0), App.Rotation(App.Vector(0, 0, 1), 0))
boolean4 = body9.newObject("PartDesign::Boolean", "Boolean003")
boolean4.Type = "Fuse"
boolean4.addObjects([body8])
body10 = doc.addObject("PartDesign::Body", "Body009")
body10.AllowCompound = True

sketch6 = body10.newObject("Sketcher::SketchObject", "Sketch005")
sketch6.AttachmentSupport = (doc.getObject("XY_Plane009"), [""])
sketch6.MapMode = "FlatFace"
sketch6.AttachmentOffset = App.Placement(App.Vector(0, 0, 2), App.Rotation())
sketch6.addGeometry(Part.Circle(App.Vector(-50.25, -47.25, 0), App.Vector(0, 0, 1), 4), False)
sketch6.addGeometry(Part.Circle(App.Vector(-50.25, -47.25, 0), App.Vector(0, 0, 1), 1.4), False)
sketch6.addGeometry(Part.Circle(App.Vector(50.25, 47.25, 0), App.Vector(0, 0, 1), 4), False)
sketch6.addGeometry(Part.Circle(App.Vector(50.25, 47.25, 0), App.Vector(0, 0, 1), 1.4), False)
sketch6.addGeometry(Part.Circle(App.Vector(-50.25, 47.25, 0), App.Vector(0, 0, 1), 4), False)
sketch6.addGeometry(Part.Circle(App.Vector(-50.25, 47.25, 0), App.Vector(0, 0, 1), 1.4), False)
sketch6.addGeometry(Part.Circle(App.Vector(25.25, -42.25, 0), App.Vector(0, 0, 1), 4), False)
sketch6.addGeometry(Part.Circle(App.Vector(25.25, -42.25, 0), App.Vector(0, 0, 1), 1.4), False)
sketch6.addGeometry(Part.Circle(App.Vector(51.25, -50.25, 0), App.Vector(0, 0, 1), 2.75), False)
sketch6.addGeometry(Part.Circle(App.Vector(-14.75, -39.25, 0), App.Vector(0, 0, 1), 4), False)
sketch6.addGeometry(Part.Circle(App.Vector(-14.75, -39.25, 0), App.Vector(0, 0, 1), 1.4), False)
sketch6.addConstraint(Sketcher.Constraint("Coincident", 1, 3, 0, 3))
sketch6.addConstraint(Sketcher.Constraint("Coincident", 3, 3, 2, 3))
sketch6.addConstraint(Sketcher.Constraint("Coincident", 5, 3, 4, 3))
sketch6.addConstraint(Sketcher.Constraint("Coincident", 7, 3, 6, 3))
sketch6.addConstraint(Sketcher.Constraint("Coincident", 10, 3, 9, 3))
sketch6.addConstraint(Sketcher.Constraint("Equal", 0, 2))
sketch6.addConstraint(Sketcher.Constraint("Equal", 1, 3))
sketch6.addConstraint(Sketcher.Constraint("Equal", 2, 4))
sketch6.addConstraint(Sketcher.Constraint("Equal", 3, 5))
sketch6.addConstraint(Sketcher.Constraint("Equal", 4, 6))
sketch6.addConstraint(Sketcher.Constraint("Equal", 5, 7))
sketch6.addConstraint(Sketcher.Constraint("Equal", 6, 9))
sketch6.addConstraint(Sketcher.Constraint("Equal", 7, 10))
sketch6.addConstraint(Sketcher.Constraint("Symmetric", 0, 3, 2, 3, -1, 1))
sketch6.addConstraint(Sketcher.Constraint("Symmetric", 2, 3, 4, 3, -2))
sketch6.addConstraint(Sketcher.Constraint("Diameter", 0, 8.0))
sketch6.addConstraint(Sketcher.Constraint("Diameter", 1, 2.8))
sketch6.addConstraint(Sketcher.Constraint("Diameter", 8, 5.5))
sketch6.addConstraint(Sketcher.Constraint("DistanceY", 0, 3, 6, 3, 5.0))
sketch6.addConstraint(Sketcher.Constraint("DistanceX", 6, 3, 2, 3, 25.0))
sketch6.addConstraint(Sketcher.Constraint("DistanceX", 6, 3, 8, 3, 26.0))
sketch6.addConstraint(Sketcher.Constraint("DistanceY", 8, 3, 6, 3, 8.0))
sketch6.addConstraint(Sketcher.Constraint("DistanceY", 0, 3, 9, 3, 8.0))
sketch6.addConstraint(Sketcher.Constraint("DistanceX", 9, 3, 6, 3, 40.0))
sketch6.addConstraint(Sketcher.Constraint("DistanceX", 0, 3, 2, 3, 100.5))
sketch6.addConstraint(Sketcher.Constraint("DistanceY", 0, 3, 2, 3, 94.5))
pad6 = body10.newObject("PartDesign::Pad", "Pad005")
pad6.Profile = sketch6
pad6.Length = 25
body11 = doc.addObject("PartDesign::Body", "Body010")

sketch7 = body11.newObject("Sketcher::SketchObject", "Sketch006")
sketch7.AttachmentSupport = (doc.getObject("XY_Plane010"), [""])
sketch7.MapMode = "FlatFace"
sketch7.AttachmentOffset = App.Placement(App.Vector(0, 0, 2), App.Rotation())
sketch7.addGeometry(Part.LineSegment(App.Vector(-60, 53, 0), App.Vector(-60, -54, 0)), False)
sketch7.addGeometry(Part.LineSegment(App.Vector(-60, -54, 0), App.Vector(56, -54, 0)), False)
sketch7.addGeometry(Part.LineSegment(App.Vector(56, -54, 0), App.Vector(56, 53, 0)), False)
sketch7.addGeometry(Part.LineSegment(App.Vector(56, 53, 0), App.Vector(-60, 53, 0)), False)
sketch7.addConstraint(Sketcher.Constraint("Coincident", 0, 2, 1, 1))
sketch7.addConstraint(Sketcher.Constraint("Coincident", 1, 2, 2, 1))
sketch7.addConstraint(Sketcher.Constraint("Coincident", 2, 2, 3, 1))
sketch7.addConstraint(Sketcher.Constraint("Coincident", 3, 2, 0, 1))
sketch7.addConstraint(Sketcher.Constraint("Vertical", 0))
sketch7.addConstraint(Sketcher.Constraint("Horizontal", 1))
sketch7.addConstraint(Sketcher.Constraint("Vertical", 2))
sketch7.addConstraint(Sketcher.Constraint("Horizontal", 3))
sketch7.addConstraint(Sketcher.Constraint("DistanceX", 1, 1, 1, 2, 116.0))
sketch7.addConstraint(Sketcher.Constraint("DistanceY", 0, 2, 0, 1, 107.0))
sketch7.addConstraint(Sketcher.Constraint("DistanceX", 0, 2, -1, 1, 60.0))
sketch7.addConstraint(Sketcher.Constraint("DistanceY", 0, 2, -1, 1, 54.0))
pad7 = body11.newObject("PartDesign::Pad", "Pad006")
pad7.Profile = sketch7
pad7.Length = 40
body12 = doc.addObject("PartDesign::Body", "Body011")

sketch8 = body12.newObject("Sketcher::SketchObject", "Sketch007")
sketch8.AttachmentSupport = (doc.getObject("XY_Plane011"), [""])
sketch8.MapMode = "FlatFace"
sketch8.addGeometry(Part.LineSegment(App.Vector(-62, 55, 0), App.Vector(-62, -56, 0)), False)
sketch8.addGeometry(Part.LineSegment(App.Vector(-62, -56, 0), App.Vector(58, -56, 0)), False)
sketch8.addGeometry(Part.LineSegment(App.Vector(58, -56, 0), App.Vector(58, 55, 0)), False)
sketch8.addGeometry(Part.LineSegment(App.Vector(58, 55, 0), App.Vector(-62, 55, 0)), False)
sketch8.addConstraint(Sketcher.Constraint("Coincident", 0, 2, 1, 1))
sketch8.addConstraint(Sketcher.Constraint("Coincident", 1, 2, 2, 1))
sketch8.addConstraint(Sketcher.Constraint("Coincident", 2, 2, 3, 1))
sketch8.addConstraint(Sketcher.Constraint("Coincident", 3, 2, 0, 1))
sketch8.addConstraint(Sketcher.Constraint("Vertical", 0))
sketch8.addConstraint(Sketcher.Constraint("Horizontal", 1))
sketch8.addConstraint(Sketcher.Constraint("Vertical", 2))
sketch8.addConstraint(Sketcher.Constraint("Horizontal", 3))
sketch8.addConstraint(Sketcher.Constraint("DistanceX", 1, 1, 1, 2, 120.0))
sketch8.addConstraint(Sketcher.Constraint("DistanceY", 0, 2, 0, 1, 111.0))
sketch8.addConstraint(Sketcher.Constraint("DistanceX", 0, 2, -1, 1, 62.0))
sketch8.addConstraint(Sketcher.Constraint("DistanceY", 0, 2, -1, 1, 56.0))
pad8 = body12.newObject("PartDesign::Pad", "Pad007")
pad8.Profile = sketch8
pad8.Length = 40
doc.recompute()

boolean5 = body12.newObject("PartDesign::Boolean", "Boolean004")
boolean5.Type = "Cut"
boolean5.addObjects([body11])
doc.recompute()

boolean6 = body12.newObject("PartDesign::Boolean", "Boolean005")
boolean6.Type = "Fuse"
boolean6.addObjects([body10])
doc.recompute()

boolean7 = body12.newObject("PartDesign::Boolean", "Boolean006")
boolean7.Type = "Cut"
boolean7.addObjects([body9])
doc.recompute()

boolean8 = body12.newObject("PartDesign::Boolean", "Boolean007")
boolean8.Type = "Cut"
boolean8.addObjects([body6])
doc.recompute()

boolean9 = body12.newObject("PartDesign::Boolean", "Boolean008")
boolean9.Type = "Cut"
boolean9.addObjects([body5])
doc.recompute()

boolean10 = body12.newObject("PartDesign::Boolean", "Boolean009")
boolean10.Type = "Cut"
boolean10.addObjects([body4])
doc.recompute()

boolean11 = body12.newObject("PartDesign::Boolean", "Boolean010")
boolean11.Type = "Cut"
boolean11.addObjects([body])
doc.recompute()

fillet = body12.newObject("PartDesign::Fillet", "Fillet")
fillet.Base = (boolean11, edges_at(boolean11, [
    (-62, -56, 20),
    (-62, 55, 20),
    (58, -56, 20),
    (58, 55, 20),
]))
fillet.Radius = 3
doc.recompute()

chamfer = body12.newObject("PartDesign::Chamfer", "Chamfer")
chamfer.Base = (fillet, edges_at(fillet, [
    (21.25, -42.25, 2),
    (-54.25, -47.25, 2),
    (-18.75, -39.25, 2),
    (46.25, 47.25, 2),
    (-54.25, 47.25, 2),
]))
chamfer.Size = 1

doc.recompute()
